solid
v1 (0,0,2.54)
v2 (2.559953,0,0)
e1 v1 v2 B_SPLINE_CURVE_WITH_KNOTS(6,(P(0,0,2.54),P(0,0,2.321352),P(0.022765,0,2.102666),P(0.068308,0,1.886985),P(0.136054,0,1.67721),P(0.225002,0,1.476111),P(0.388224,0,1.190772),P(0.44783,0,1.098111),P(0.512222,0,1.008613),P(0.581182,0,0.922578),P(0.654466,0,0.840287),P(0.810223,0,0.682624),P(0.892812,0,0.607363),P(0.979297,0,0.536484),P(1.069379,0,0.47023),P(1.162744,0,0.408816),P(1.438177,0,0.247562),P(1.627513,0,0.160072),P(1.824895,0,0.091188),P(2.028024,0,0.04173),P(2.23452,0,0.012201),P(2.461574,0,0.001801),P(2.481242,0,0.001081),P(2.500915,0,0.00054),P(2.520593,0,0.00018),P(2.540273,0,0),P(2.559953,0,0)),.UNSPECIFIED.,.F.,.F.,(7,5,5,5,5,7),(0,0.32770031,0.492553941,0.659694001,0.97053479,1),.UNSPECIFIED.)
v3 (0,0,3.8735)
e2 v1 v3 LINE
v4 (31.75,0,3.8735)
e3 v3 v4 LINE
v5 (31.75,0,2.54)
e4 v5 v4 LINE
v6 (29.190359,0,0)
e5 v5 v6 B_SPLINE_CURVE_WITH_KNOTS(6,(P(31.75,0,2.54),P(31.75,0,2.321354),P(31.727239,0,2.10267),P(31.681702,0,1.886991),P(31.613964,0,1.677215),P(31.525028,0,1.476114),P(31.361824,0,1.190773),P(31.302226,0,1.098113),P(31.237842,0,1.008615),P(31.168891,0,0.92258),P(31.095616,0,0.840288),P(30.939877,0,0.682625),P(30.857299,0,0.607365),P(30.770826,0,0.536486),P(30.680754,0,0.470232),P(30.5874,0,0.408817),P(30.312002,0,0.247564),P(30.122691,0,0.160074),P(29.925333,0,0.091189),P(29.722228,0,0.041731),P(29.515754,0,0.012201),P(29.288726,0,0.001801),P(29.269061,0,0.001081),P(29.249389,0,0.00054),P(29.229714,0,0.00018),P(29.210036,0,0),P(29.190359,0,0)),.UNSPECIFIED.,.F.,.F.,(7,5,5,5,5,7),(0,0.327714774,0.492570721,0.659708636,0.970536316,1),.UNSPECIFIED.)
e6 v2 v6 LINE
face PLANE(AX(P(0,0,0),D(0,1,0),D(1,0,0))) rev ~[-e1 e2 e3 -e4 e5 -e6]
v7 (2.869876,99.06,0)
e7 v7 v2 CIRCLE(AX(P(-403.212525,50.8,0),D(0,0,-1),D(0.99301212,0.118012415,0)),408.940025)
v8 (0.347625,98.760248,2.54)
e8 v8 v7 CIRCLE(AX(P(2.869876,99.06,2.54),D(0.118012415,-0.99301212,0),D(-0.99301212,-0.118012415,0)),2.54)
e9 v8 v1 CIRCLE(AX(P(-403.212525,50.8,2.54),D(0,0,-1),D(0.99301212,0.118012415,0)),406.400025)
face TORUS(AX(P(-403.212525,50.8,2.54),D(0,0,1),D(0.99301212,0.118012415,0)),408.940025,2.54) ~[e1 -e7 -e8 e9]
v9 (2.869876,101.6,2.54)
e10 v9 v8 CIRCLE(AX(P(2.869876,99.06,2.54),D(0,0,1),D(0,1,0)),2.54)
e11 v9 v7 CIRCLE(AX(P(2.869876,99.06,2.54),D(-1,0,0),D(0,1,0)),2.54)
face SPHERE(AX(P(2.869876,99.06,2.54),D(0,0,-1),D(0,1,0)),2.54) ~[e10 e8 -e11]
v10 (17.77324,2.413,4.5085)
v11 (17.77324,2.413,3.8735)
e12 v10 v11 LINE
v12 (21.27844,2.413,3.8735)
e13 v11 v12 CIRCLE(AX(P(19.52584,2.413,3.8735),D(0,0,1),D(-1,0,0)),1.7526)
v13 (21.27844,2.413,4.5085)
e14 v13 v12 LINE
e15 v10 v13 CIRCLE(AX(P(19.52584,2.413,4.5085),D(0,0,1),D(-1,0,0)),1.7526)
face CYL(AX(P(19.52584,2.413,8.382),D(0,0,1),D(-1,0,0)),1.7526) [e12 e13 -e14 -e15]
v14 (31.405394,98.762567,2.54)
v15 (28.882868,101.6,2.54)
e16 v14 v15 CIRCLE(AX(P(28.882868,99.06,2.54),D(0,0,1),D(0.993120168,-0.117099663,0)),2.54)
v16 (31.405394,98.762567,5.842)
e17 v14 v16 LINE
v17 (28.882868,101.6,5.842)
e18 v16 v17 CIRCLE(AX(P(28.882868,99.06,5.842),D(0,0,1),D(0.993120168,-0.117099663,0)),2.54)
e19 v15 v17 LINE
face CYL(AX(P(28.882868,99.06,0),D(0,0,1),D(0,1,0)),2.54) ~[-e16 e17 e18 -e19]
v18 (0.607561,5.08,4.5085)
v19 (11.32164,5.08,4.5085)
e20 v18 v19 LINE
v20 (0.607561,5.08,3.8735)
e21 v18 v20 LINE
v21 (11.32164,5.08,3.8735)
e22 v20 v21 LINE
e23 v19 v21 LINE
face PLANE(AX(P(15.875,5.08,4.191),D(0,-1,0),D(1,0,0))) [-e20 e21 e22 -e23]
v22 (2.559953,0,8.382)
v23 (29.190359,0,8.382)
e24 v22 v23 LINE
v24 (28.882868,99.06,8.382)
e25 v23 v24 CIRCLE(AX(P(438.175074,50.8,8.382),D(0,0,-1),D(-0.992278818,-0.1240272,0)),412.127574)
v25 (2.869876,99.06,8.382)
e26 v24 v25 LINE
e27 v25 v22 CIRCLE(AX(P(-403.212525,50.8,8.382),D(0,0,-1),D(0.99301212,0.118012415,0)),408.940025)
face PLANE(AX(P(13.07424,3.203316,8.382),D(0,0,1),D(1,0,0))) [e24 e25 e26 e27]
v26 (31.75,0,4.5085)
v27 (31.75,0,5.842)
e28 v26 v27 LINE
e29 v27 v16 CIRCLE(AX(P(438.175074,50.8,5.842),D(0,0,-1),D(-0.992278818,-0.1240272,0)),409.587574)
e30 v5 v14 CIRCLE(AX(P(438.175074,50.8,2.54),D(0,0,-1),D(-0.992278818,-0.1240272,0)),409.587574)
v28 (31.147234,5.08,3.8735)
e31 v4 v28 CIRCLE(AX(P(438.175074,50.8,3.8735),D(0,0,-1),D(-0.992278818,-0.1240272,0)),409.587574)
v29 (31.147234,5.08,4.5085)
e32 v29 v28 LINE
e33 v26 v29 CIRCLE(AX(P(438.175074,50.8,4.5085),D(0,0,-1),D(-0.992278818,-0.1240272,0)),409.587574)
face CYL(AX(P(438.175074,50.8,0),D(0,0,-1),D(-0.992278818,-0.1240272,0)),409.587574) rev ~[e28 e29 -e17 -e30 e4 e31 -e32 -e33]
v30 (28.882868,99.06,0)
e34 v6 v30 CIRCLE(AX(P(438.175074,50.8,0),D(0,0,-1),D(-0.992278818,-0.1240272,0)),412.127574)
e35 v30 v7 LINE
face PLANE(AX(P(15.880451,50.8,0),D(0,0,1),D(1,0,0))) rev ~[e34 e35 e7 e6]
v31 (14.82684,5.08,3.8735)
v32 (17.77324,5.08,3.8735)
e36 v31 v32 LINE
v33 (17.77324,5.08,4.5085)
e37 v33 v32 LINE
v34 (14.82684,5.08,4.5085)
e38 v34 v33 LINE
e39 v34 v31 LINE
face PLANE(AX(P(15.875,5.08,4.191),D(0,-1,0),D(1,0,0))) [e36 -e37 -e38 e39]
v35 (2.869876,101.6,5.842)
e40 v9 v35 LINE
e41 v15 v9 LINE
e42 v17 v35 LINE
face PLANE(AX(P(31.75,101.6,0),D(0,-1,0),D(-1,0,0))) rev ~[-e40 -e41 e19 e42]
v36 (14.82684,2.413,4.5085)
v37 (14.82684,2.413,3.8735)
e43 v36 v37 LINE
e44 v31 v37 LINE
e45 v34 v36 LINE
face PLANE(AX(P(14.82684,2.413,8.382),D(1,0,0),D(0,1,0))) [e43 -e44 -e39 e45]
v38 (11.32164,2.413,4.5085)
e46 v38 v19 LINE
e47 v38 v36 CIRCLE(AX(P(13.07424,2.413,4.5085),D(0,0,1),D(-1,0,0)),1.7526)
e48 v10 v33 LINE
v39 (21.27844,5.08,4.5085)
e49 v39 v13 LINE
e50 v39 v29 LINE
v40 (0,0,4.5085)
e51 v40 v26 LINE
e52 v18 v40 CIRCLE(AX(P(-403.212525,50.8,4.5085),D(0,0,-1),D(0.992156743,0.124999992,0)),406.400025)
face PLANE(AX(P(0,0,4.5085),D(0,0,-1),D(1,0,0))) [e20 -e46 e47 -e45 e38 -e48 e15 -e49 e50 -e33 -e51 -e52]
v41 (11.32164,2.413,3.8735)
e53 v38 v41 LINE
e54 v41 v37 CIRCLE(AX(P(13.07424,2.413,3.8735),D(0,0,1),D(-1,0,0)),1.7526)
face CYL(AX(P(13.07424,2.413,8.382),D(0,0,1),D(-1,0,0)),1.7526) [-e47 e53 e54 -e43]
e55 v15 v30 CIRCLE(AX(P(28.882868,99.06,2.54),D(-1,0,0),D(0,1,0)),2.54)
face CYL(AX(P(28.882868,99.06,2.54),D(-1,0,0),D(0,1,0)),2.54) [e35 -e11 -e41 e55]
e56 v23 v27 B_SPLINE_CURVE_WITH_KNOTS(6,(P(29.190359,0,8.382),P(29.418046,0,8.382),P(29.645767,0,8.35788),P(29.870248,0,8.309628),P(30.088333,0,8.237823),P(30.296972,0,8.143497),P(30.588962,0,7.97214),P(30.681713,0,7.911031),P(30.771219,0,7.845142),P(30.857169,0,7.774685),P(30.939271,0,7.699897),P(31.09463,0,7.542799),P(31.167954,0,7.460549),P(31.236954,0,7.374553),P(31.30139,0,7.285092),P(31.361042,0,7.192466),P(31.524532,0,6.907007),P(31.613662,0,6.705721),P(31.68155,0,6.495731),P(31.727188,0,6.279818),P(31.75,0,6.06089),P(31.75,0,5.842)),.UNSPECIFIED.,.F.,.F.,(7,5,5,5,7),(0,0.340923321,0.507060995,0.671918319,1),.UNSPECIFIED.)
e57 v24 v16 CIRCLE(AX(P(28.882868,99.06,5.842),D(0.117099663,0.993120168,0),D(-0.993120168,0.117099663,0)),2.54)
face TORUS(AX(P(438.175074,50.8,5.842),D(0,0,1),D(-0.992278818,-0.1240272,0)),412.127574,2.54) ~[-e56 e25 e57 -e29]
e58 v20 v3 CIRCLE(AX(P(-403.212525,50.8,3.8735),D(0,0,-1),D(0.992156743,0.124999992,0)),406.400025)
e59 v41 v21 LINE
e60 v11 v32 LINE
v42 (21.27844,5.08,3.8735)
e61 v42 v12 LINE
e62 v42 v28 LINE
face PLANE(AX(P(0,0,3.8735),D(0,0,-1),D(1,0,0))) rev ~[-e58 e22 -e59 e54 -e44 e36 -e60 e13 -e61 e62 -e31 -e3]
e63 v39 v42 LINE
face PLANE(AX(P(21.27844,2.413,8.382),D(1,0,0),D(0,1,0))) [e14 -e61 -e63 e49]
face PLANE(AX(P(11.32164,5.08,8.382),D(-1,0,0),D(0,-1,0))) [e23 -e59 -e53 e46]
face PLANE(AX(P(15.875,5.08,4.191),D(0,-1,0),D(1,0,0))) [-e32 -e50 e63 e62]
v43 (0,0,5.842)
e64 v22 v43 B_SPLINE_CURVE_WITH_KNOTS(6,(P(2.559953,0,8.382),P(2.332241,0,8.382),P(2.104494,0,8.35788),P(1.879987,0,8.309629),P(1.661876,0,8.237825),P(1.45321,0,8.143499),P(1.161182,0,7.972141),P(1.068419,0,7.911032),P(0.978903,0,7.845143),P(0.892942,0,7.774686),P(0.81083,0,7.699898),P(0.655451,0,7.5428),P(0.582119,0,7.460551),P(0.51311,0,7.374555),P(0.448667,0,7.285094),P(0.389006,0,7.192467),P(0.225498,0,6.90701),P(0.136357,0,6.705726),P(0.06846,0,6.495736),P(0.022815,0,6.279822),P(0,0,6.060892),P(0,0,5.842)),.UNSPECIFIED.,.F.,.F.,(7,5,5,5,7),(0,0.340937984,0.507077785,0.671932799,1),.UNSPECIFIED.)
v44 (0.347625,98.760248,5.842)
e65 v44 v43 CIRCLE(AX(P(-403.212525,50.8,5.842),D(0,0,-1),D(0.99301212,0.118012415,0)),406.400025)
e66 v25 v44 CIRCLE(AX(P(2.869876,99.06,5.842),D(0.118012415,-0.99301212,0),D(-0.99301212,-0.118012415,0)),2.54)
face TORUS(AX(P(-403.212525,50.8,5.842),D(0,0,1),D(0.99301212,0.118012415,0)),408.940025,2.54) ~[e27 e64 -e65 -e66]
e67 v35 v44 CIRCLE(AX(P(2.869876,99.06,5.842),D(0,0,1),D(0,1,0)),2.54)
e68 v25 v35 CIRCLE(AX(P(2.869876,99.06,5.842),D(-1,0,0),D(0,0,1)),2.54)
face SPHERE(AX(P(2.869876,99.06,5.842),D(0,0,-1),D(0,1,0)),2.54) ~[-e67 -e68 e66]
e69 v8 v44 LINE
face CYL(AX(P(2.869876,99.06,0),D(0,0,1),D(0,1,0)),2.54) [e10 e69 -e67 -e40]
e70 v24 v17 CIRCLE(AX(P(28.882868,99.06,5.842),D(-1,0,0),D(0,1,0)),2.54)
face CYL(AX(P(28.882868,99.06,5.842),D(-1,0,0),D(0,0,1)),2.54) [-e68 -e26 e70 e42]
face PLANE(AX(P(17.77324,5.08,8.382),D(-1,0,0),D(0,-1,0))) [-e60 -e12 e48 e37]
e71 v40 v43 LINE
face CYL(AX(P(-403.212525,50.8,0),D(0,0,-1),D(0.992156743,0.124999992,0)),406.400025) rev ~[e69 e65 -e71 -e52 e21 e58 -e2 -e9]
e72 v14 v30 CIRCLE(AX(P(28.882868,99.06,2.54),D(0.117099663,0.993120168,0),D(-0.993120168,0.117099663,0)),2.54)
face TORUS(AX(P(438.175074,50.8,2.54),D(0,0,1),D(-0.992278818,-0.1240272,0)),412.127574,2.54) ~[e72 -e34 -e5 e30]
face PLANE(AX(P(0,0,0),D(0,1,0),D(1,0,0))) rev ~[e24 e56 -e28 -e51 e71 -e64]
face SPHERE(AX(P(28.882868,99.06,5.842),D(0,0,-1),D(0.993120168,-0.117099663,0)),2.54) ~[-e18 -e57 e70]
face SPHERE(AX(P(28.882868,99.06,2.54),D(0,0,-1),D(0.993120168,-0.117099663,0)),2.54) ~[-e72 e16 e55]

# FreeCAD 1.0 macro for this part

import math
import FreeCAD as App
import Part
import Sketcher
Q = App.Units.Quantity


def edges_at(feature, points):
    """Names of the edges that pass closest to the given points."""
    edges = feature.Shape.Edges
    near = lambda p: min(range(len(edges)), key=lambda i: edges[i].distToShape(Part.Vertex(*p))[0])
    return sorted({f"Edge{near(p) + 1}" for p in points})

doc = App.newDocument("Part")
body = doc.addObject("PartDesign::Body", "Body")

# Sketch on XY plane
sketch1 = body.newObject("Sketcher::SketchObject", "Sketch")
sketch1.AttachmentSupport = (doc.getObject("XY_Plane"), [""])
sketch1.MapMode = "FlatFace"
sketch1.addGeometry(Part.LineSegment(App.Vector(31.75, 101.6, 0), App.Vector(0, 101.6, 0)), False)
sketch1.addGeometry(Part.ArcOfCircle(Part.Circle(App.Vector(-403.212525, 50.8, 0), App.Vector(0, 0, 1), 406.400025), math.radians(-7.180755), math.radians(7.180755)), False)
sketch1.addGeometry(Part.LineSegment(App.Vector(0, 0, 0), App.Vector(31.75, 0, 0)), False)
sketch1.addGeometry(Part.ArcOfCircle(Part.Circle(App.Vector(438.175074, 50.8, 0), App.Vector(0, 0, 1), 409.587574), math.radians(172.875419), math.radians(187.124581)), False)
sketch1.addConstraint(Sketcher.Constraint("Coincident", 0, 2, 1, 2))
sketch1.addConstraint(Sketcher.Constraint("Coincident", 1, 1, 2, 1))
sketch1.addConstraint(Sketcher.Constraint("Coincident", 2, 2, 3, 2))
sketch1.addConstraint(Sketcher.Constraint("Coincident", 3, 1, 0, 1))
sketch1.addConstraint(Sketcher.Constraint("Horizontal", 0))
sketch1.addConstraint(Sketcher.Constraint("Horizontal", 2))
sketch1.addConstraint(Sketcher.Constraint("PointOnObject", 0, 2, -2))
sketch1.addConstraint(Sketcher.Constraint("PointOnObject", 2, 2, -1))
sketch1.addConstraint(Sketcher.Constraint("Horizontal", 1, 3, 3, 3))
sketch1.addConstraint(Sketcher.Constraint("Vertical", 0, 2, 1, 1))
sketch1.addConstraint(Sketcher.Constraint("DistanceY", -1, 1, 1, 3, Q("2 in")))
sketch1.addConstraint(Sketcher.Constraint("DistanceX", 0, 2, 0, 1, Q("1.25 in")))
sketch1.addConstraint(Sketcher.Constraint("Radius", 1, Q("406.400025 mm")))
sketch1.addConstraint(Sketcher.Constraint("Radius", 3, Q("409.587574 mm")))
pad1 = body.newObject("PartDesign::Pad", "Pad")
pad1.Profile = sketch1
pad1.Length = Q("0.33 in")

# Sketch on XZ plane
sketch2 = body.newObject("Sketcher::SketchObject", "Sketch001")
sketch2.AttachmentSupport = (doc.getObject("XZ_Plane"), [""])
sketch2.MapMode = "FlatFace"
sketch2.addGeometry(Part.LineSegment(App.Vector(0, 4.5085, 0), App.Vector(0, 3.8735, 0)), False)
sketch2.addGeometry(Part.LineSegment(App.Vector(0, 3.8735, 0), App.Vector(31.75, 3.8735, 0)), False)
sketch2.addGeometry(Part.LineSegment(App.Vector(31.75, 3.8735, 0), App.Vector(31.75, 4.5085, 0)), False)
sketch2.addGeometry(Part.LineSegment(App.Vector(31.75, 4.5085, 0), App.Vector(0, 4.5085, 0)), False)
sketch2.addConstraint(Sketcher.Constraint("Coincident", 0, 2, 1, 1))
sketch2.addConstraint(Sketcher.Constraint("Coincident", 1, 2, 2, 1))
sketch2.addConstraint(Sketcher.Constraint("Coincident", 2, 2, 3, 1))
sketch2.addConstraint(Sketcher.Constraint("Coincident", 3, 2, 0, 1))
sketch2.addConstraint(Sketcher.Constraint("Vertical", 0))
sketch2.addConstraint(Sketcher.Constraint("Horizontal", 1))
sketch2.addConstraint(Sketcher.Constraint("Vertical", 2))
sketch2.addConstraint(Sketcher.Constraint("Horizontal", 3))
sketch2.addConstraint(Sketcher.Constraint("PointOnObject", 0, 2, -2))
sketch2.addConstraint(Sketcher.Constraint("DistanceX", 1, 1, 1, 2, Q("1.25 in")))
sketch2.addConstraint(Sketcher.Constraint("DistanceY", 0, 2, 0, 1, Q("0.025 in")))
sketch2.addConstraint(Sketcher.Constraint("DistanceY", -1, 1, 0, 2, Q("0.1525 in")))
pocket1 = body.newObject("PartDesign::Pocket", "Pocket")
pocket1.Profile = sketch2
pocket1.Length = Q("0.2 in")

# Sketch on XY plane
sketch3 = body.newObject("Sketcher::SketchObject", "Sketch002")
sketch3.AttachmentSupport = (doc.getObject("XY_Plane"), [""])
sketch3.MapMode = "FlatFace"
sketch3.AttachmentOffset = App.Placement(App.Vector(0, 0, 0.33 * 25.4), App.Rotation())
sketch3.addGeometry(Part.LineSegment(App.Vector(14.82684, 5.08, 0), App.Vector(11.32164, 5.08, 0)), False)
sketch3.addGeometry(Part.LineSegment(App.Vector(11.32164, 5.08, 0), App.Vector(11.32164, 2.413, 0)), False)
sketch3.addGeometry(Part.ArcOfCircle(Part.Circle(App.Vector(13.07424, 2.413, 0), App.Vector(0, 0, 1), 1.7526), math.radians(180), math.radians(360)), False)
sketch3.addGeometry(Part.LineSegment(App.Vector(14.82684, 2.413, 0), App.Vector(14.82684, 5.08, 0)), False)
sketch3.addGeometry(Part.LineSegment(App.Vector(21.27844, 5.08, 0), App.Vector(17.77324, 5.08, 0)), False)
sketch3.addGeometry(Part.LineSegment(App.Vector(17.77324, 5.08, 0), App.Vector(17.77324, 2.413, 0)), False)
sketch3.addGeometry(Part.ArcOfCircle(Part.Circle(App.Vector(19.52584, 2.413, 0), App.Vector(0, 0, 1), 1.7526), math.radians(180), math.radians(360)), False)
sketch3.addGeometry(Part.LineSegment(App.Vector(21.27844, 2.413, 0), App.Vector(21.27844, 5.08, 0)), False)
sketch3.addConstraint(Sketcher.Constraint("Coincident", 0, 2, 1, 1))
sketch3.addConstraint(Sketcher.Constraint("Tangent", 1, 2, 2, 1))
sketch3.addConstraint(Sketcher.Constraint("Tangent", 2, 2, 3, 1))
sketch3.addConstraint(Sketcher.Constraint("Coincident", 3, 2, 0, 1))
sketch3.addConstraint(Sketcher.Constraint("Coincident", 4, 2, 5, 1))
sketch3.addConstraint(Sketcher.Constraint("Tangent", 5, 2, 6, 1))
sketch3.addConstraint(Sketcher.Constraint("Tangent", 6, 2, 7, 1))
sketch3.addConstraint(Sketcher.Constraint("Coincident", 7, 2, 4, 1))
sketch3.addConstraint(Sketcher.Constraint("Horizontal", 0))
sketch3.addConstraint(Sketcher.Constraint("Vertical", 1))
sketch3.addConstraint(Sketcher.Constraint("Vertical", 3))
sketch3.addConstraint(Sketcher.Constraint("Horizontal", 4))
sketch3.addConstraint(Sketcher.Constraint("Vertical", 5))
sketch3.addConstraint(Sketcher.Constraint("Vertical", 7))
sketch3.addConstraint(Sketcher.Constraint("Equal", 2, 6))
sketch3.addConstraint(Sketcher.Constraint("Horizontal", 2, 3, 6, 3))
sketch3.addConstraint(Sketcher.Constraint("Horizontal", 3, 2, 4, 2))
sketch3.addConstraint(Sketcher.Constraint("Radius", 2, Q("0.069 in")))
sketch3.addConstraint(Sketcher.Constraint("DistanceY", -1, 1, 0, 2, Q("0.2 in")))
sketch3.addConstraint(Sketcher.Constraint("DistanceY", 1, 2, 1, 1, Q("0.105 in")))
sketch3.addConstraint(Sketcher.Constraint("DistanceX", 2, 3, 6, 3, Q("0.254 in")))
sketch3.addConstraint(Sketcher.Constraint("DistanceX", -1, 1, 2, 3, Q("13.07424 mm")))
pad2 = body.newObject("PartDesign::Pad", "Pad001")
pad2.Profile = sketch3
pad2.Length = Q("0.33 in")
pad2.Reversed = True
doc.recompute()

fillet = body.newObject("PartDesign::Fillet", "Fillet")
fillet.Base = (pad2, edges_at(pad2, [(0, 101.6, 4.191), (31.75, 101.6, 4.191)]))
fillet.Radius = Q("0.1 in")
doc.recompute()

fillet2 = body.newObject("PartDesign::Fillet", "Fillet001")
fillet2.Base = (fillet, edges_at(fillet, [(28.59, 49.371, 0), (28.59, 49.371, 8.382)]))
fillet2.Radius = Q("0.1 in")

doc.recompute()
